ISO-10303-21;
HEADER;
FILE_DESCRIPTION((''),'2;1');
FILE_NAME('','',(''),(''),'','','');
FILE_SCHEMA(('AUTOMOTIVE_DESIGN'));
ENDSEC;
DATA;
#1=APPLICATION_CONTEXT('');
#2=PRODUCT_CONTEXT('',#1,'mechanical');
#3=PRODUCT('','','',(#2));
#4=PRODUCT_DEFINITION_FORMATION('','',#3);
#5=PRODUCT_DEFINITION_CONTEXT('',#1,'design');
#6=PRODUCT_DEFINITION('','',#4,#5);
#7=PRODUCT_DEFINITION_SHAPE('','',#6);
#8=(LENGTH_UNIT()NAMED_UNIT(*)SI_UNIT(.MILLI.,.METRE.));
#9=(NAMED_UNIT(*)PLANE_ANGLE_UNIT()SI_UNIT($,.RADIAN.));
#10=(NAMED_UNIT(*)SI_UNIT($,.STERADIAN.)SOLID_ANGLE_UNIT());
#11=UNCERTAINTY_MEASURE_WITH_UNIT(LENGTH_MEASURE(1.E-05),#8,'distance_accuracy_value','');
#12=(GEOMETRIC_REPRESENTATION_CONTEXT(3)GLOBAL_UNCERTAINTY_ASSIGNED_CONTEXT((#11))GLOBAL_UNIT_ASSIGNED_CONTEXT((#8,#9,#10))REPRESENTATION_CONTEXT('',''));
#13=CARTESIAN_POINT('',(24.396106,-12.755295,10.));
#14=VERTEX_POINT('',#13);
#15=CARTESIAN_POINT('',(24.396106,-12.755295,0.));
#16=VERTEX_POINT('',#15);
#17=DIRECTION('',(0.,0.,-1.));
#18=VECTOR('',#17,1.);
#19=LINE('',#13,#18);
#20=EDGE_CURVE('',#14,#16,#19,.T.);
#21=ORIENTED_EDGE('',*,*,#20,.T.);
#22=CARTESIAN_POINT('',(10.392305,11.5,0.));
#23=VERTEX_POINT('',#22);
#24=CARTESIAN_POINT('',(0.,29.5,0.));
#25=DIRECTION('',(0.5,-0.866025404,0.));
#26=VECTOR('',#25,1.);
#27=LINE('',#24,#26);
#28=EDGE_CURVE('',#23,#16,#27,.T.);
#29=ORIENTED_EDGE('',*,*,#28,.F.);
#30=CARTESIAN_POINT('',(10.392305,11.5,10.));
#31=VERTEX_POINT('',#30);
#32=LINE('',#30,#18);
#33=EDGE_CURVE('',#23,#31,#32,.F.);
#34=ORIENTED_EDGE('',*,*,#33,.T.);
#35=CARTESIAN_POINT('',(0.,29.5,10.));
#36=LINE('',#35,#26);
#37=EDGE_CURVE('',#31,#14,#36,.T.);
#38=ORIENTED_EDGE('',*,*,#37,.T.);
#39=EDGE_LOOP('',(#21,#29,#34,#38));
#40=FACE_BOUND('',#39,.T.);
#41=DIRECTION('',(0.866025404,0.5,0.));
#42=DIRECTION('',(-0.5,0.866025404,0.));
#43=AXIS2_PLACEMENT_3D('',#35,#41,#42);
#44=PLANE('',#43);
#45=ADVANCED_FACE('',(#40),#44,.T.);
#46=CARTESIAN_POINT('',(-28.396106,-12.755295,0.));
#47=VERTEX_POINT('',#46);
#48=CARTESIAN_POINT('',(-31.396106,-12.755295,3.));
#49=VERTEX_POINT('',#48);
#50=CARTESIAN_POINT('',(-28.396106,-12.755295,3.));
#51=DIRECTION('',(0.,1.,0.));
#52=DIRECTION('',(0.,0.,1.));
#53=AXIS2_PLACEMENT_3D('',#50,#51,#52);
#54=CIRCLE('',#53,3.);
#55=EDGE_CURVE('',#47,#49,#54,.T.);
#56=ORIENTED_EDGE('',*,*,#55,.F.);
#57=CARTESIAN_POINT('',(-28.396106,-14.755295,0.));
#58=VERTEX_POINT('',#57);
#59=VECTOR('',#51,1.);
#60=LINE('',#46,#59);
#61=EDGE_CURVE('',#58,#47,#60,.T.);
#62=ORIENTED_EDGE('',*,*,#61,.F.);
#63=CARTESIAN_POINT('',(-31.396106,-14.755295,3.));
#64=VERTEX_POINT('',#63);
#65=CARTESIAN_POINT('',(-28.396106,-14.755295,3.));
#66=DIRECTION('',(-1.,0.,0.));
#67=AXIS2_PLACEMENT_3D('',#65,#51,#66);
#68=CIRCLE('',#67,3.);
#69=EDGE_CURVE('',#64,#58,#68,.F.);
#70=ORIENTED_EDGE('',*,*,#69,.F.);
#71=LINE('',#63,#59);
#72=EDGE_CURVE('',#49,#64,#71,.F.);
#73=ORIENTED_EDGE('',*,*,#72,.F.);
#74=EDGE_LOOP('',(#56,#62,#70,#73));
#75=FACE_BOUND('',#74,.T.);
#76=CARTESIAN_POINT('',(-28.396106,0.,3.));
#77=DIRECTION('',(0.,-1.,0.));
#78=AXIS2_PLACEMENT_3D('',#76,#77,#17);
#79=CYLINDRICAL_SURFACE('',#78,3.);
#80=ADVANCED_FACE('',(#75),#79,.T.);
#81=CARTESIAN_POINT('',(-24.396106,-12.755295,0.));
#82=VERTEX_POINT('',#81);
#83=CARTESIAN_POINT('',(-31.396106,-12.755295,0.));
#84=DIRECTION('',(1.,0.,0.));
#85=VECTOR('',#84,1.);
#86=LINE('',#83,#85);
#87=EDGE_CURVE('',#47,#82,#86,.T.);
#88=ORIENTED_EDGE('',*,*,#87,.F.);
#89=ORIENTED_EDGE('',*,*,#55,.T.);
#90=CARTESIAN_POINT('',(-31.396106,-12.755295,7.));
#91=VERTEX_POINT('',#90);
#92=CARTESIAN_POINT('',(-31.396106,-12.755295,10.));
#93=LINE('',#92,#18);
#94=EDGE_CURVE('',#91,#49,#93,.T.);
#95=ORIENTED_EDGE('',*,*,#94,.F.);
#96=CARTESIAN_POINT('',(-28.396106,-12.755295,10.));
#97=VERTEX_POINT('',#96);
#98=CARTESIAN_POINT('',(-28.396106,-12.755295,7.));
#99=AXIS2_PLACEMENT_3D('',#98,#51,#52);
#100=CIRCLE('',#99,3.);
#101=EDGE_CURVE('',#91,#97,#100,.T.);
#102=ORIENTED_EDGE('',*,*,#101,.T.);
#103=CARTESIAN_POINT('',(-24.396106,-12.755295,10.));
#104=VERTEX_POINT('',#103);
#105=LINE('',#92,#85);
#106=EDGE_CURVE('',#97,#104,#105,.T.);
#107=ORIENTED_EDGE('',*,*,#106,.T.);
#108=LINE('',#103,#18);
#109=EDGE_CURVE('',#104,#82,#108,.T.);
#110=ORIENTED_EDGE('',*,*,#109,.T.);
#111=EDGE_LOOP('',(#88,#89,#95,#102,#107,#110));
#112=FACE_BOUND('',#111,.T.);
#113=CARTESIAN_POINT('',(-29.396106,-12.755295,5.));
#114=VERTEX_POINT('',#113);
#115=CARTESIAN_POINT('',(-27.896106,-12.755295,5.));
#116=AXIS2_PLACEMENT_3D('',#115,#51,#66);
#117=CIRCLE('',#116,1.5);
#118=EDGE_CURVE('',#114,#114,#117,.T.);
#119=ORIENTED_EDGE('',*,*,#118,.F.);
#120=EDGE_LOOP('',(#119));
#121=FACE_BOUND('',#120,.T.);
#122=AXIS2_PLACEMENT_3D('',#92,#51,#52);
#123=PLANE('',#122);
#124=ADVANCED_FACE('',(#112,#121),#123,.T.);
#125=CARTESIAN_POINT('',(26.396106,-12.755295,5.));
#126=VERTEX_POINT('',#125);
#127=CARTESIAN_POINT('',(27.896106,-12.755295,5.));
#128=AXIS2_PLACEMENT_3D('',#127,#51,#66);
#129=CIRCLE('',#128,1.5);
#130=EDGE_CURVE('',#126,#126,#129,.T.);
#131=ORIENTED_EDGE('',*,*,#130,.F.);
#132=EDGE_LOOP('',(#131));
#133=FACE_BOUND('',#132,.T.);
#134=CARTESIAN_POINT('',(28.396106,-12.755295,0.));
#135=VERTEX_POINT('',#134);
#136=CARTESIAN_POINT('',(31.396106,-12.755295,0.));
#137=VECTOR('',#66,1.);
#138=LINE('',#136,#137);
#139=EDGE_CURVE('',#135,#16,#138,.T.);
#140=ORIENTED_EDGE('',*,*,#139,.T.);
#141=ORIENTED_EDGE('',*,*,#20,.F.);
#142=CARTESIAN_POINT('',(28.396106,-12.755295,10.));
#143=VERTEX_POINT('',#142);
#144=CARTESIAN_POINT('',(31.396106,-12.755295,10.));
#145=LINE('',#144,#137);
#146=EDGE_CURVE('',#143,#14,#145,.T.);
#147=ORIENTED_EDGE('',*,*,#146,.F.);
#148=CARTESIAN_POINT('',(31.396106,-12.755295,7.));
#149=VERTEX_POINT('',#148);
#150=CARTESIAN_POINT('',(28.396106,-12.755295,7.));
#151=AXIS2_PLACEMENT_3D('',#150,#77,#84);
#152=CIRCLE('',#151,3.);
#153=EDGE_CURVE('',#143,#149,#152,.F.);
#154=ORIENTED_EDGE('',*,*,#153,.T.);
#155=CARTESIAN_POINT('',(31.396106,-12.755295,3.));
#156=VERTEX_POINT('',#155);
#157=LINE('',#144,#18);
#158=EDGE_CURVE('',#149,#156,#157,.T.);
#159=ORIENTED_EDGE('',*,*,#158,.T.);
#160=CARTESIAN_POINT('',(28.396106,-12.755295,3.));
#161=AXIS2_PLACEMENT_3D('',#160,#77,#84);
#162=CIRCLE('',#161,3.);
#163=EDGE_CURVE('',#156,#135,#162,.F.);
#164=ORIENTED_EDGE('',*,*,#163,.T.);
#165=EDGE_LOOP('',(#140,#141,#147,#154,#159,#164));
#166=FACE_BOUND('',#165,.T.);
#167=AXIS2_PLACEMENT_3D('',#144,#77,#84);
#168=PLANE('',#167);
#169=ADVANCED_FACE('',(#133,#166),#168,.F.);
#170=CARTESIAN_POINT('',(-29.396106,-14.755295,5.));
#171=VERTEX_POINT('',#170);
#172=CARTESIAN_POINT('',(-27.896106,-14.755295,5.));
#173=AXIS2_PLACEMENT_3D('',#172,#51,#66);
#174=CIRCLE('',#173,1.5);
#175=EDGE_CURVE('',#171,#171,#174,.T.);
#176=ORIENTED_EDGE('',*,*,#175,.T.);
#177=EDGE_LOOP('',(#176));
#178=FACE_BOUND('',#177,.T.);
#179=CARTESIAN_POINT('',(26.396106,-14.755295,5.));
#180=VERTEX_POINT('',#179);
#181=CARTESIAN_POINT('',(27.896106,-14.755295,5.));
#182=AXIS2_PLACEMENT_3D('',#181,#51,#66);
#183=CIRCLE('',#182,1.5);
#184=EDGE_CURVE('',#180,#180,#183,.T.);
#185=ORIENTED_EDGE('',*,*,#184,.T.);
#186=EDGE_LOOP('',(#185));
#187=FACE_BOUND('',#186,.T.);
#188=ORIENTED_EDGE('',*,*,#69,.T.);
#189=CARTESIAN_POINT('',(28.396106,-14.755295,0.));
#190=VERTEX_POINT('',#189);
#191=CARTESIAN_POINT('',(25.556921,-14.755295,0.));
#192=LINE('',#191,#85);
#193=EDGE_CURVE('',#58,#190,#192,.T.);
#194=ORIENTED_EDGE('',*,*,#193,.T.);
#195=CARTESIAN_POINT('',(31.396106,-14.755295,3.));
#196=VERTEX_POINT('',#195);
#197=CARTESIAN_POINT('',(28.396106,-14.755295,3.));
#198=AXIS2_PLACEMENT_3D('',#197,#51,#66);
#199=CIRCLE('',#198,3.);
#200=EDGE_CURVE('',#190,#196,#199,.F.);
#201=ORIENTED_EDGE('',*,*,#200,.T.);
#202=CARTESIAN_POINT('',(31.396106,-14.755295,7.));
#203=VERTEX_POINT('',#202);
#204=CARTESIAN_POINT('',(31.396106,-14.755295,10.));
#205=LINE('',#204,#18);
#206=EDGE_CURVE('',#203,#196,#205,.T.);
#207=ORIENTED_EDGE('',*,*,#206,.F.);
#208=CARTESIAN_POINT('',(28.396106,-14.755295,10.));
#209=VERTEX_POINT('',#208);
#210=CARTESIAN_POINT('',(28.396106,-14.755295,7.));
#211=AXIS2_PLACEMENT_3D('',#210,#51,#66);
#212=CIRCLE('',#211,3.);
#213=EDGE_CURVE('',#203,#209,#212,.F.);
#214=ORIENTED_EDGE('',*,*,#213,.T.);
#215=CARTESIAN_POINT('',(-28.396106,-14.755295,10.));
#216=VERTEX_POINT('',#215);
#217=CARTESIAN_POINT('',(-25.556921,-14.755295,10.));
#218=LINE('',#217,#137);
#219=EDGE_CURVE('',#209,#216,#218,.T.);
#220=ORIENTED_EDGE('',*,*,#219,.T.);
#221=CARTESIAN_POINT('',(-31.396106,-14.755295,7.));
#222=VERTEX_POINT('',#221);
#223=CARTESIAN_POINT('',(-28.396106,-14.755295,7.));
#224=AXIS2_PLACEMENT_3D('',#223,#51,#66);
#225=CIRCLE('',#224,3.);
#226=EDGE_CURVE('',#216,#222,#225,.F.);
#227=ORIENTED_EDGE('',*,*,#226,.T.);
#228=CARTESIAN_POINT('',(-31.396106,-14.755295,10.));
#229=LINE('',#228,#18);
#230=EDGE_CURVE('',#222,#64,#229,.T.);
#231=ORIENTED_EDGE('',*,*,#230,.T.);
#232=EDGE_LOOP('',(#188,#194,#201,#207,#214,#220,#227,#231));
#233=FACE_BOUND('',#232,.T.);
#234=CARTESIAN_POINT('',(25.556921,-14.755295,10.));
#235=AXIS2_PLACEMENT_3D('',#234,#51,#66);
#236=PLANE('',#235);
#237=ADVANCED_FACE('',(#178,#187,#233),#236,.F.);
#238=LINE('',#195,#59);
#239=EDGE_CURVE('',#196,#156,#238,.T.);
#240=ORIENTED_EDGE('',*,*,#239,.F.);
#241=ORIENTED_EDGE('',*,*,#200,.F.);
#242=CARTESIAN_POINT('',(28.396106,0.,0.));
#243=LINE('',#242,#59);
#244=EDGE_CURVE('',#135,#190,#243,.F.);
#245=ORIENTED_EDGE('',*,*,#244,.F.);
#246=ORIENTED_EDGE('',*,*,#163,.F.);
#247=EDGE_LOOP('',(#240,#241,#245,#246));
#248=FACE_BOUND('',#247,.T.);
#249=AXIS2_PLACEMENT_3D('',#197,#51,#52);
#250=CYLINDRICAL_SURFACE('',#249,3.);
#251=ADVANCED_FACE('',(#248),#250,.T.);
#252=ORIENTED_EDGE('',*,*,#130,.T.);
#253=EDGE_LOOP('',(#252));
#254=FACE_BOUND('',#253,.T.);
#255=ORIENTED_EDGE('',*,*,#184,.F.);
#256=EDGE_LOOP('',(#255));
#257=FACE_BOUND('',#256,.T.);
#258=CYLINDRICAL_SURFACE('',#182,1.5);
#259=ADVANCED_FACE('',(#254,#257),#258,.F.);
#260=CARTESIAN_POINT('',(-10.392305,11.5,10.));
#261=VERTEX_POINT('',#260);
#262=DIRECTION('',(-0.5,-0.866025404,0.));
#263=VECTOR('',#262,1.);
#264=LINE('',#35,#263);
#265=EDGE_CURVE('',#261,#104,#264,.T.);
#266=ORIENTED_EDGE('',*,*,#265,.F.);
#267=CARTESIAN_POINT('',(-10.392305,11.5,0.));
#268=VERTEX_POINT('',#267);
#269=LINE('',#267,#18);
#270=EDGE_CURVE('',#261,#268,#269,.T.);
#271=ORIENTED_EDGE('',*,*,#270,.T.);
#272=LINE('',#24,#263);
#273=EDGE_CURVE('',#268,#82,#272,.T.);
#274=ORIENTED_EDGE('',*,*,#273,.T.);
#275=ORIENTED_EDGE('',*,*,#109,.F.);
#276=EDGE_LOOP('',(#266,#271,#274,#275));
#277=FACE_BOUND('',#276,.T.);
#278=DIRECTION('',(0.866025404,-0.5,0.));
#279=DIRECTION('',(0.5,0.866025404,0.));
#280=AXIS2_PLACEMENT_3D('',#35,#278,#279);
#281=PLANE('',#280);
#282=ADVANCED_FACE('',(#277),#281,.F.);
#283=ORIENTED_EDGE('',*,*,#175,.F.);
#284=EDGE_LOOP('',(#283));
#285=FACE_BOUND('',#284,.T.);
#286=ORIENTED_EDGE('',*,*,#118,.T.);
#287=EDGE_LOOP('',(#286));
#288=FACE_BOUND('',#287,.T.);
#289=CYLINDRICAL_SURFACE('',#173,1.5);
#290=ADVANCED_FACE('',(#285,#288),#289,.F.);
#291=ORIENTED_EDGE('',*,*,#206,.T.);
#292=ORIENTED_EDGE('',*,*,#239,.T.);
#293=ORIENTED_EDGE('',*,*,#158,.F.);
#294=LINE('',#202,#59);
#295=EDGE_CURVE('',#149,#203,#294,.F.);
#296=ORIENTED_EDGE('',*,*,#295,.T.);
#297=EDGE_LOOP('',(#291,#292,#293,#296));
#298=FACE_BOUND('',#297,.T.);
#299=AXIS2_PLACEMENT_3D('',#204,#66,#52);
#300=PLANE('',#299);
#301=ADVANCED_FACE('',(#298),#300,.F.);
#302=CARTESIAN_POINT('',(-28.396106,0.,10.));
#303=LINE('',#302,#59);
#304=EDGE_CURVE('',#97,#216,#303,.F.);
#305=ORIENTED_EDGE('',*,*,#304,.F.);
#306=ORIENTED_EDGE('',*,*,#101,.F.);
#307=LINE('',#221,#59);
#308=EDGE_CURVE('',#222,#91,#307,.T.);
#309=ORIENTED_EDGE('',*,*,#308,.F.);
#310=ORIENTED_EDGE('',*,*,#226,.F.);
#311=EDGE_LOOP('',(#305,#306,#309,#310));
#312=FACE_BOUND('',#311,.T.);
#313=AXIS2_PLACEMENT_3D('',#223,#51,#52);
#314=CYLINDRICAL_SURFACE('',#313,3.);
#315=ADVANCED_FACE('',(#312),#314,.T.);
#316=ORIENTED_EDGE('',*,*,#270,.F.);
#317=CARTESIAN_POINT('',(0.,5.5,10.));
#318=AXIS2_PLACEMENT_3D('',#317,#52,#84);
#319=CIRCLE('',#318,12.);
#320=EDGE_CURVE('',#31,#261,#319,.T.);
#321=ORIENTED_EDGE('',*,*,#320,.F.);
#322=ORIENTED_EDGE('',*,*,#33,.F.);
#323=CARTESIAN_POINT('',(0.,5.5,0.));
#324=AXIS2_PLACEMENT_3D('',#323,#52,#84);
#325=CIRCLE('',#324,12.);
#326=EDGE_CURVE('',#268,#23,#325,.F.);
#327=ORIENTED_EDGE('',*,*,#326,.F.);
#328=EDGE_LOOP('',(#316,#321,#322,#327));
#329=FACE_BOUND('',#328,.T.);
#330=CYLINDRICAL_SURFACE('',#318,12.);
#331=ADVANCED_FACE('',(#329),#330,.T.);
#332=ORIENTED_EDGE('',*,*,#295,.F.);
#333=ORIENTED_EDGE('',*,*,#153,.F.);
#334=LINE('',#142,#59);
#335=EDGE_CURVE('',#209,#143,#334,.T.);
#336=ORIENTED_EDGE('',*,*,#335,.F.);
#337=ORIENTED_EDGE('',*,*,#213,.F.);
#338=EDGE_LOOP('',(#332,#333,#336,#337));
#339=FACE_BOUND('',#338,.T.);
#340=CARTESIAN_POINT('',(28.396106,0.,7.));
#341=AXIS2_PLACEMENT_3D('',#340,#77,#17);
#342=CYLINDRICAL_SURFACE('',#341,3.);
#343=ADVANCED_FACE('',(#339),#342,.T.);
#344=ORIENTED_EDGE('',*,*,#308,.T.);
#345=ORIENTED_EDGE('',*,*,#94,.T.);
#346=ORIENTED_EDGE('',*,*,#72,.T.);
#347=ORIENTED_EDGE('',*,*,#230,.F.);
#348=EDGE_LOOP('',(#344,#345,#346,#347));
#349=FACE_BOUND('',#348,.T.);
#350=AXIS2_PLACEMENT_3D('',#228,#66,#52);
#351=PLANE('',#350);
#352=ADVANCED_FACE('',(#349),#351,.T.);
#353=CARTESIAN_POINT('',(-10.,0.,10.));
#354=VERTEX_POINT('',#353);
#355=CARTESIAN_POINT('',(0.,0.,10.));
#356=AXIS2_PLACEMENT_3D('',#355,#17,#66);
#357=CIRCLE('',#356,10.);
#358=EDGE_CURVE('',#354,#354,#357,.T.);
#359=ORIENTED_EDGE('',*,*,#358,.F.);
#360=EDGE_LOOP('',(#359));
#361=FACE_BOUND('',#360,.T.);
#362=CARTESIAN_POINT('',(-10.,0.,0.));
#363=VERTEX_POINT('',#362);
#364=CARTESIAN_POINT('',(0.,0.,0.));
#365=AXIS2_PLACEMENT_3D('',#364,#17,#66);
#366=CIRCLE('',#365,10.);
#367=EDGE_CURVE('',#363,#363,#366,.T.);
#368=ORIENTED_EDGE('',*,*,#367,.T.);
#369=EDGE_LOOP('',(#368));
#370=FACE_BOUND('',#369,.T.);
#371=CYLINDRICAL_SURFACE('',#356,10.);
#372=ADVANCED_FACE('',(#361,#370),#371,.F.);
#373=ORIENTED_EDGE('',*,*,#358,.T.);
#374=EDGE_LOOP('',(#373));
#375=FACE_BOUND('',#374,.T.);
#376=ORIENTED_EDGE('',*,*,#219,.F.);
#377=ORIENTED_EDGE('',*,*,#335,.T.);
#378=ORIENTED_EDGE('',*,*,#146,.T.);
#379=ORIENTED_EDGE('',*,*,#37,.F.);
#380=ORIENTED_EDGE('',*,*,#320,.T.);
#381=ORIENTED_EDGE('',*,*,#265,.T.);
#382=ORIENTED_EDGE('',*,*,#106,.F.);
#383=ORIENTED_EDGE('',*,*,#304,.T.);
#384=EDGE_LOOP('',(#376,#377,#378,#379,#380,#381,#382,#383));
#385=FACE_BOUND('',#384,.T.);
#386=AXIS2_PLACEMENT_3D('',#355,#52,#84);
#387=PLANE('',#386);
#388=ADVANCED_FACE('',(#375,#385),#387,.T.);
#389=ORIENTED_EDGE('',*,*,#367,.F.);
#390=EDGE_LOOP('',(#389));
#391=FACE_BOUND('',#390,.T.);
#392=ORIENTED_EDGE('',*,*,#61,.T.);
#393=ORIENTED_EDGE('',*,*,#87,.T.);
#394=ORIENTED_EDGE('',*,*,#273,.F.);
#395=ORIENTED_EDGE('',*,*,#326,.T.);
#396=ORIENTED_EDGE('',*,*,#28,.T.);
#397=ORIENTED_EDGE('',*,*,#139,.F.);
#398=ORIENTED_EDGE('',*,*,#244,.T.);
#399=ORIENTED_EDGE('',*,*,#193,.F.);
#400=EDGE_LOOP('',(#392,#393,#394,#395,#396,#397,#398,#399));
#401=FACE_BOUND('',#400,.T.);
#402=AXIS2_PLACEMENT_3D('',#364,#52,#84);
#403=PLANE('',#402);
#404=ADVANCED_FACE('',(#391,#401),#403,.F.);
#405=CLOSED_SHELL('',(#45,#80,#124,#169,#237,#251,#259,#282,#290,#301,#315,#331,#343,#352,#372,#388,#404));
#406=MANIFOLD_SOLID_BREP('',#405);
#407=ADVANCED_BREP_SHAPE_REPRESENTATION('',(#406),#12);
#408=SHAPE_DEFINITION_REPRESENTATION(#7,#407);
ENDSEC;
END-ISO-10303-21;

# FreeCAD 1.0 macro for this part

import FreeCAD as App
import Part
import Sketcher

V = App.Vector
Q = App.Units.Quantity


def edges_at(feature, points):
    """Names of the edges that pass closest to the given points."""
    edges = feature.Shape.Edges
    near = lambda p: min(range(len(edges)), key=lambda i: edges[i].distToShape(Part.Vertex(*p))[0])
    return sorted({f"Edge{near(p) + 1}" for p in points})


def add_polygon(sketch, points):
    """Adds a closed chain of lines whose ends are joined by coincident constraints."""
    first, n = sketch.GeometryCount, len(points)
    for a, b in zip(points, points[1:] + points[:1]):
        sketch.addGeometry(Part.LineSegment(App.Vector(*a, 0), App.Vector(*b, 0)), False)
    for i in range(n):
        sketch.addConstraint(Sketcher.Constraint("Coincident", first + i, 2, first + (i + 1) % n, 1))

doc = App.newDocument("Part")
body = doc.addObject("PartDesign::Body", "Body")

# Sketch on XY plane
sketch1 = doc.addObject("Sketcher::SketchObject", "Sketch")
body.addObject(sketch1)
sketch1.AttachmentSupport = (doc.XY_Plane, [""])
sketch1.MapMode = "FlatFace"
add_polygon(sketch1, [(0, 29.5), (-24.4, -12.8), (-31.4, -12.8), (-31.4, -14.8), (31.4, -14.8), (31.4, -12.8), (24.4, -12.8)])  # lines 0-6
sketch1.addConstraint(Sketcher.Constraint("Horizontal", 1))
sketch1.addConstraint(Sketcher.Constraint("Vertical", 2))
sketch1.addConstraint(Sketcher.Constraint("Horizontal", 3))
sketch1.addConstraint(Sketcher.Constraint("Vertical", 4))
sketch1.addConstraint(Sketcher.Constraint("Horizontal", 5))
sketch1.addConstraint(Sketcher.Constraint("Symmetric", 1, 2, 4, 2, -2))
sketch1.addConstraint(Sketcher.Constraint("PointOnObject", 6, 2, -2))
sketch1.addConstraint(Sketcher.Constraint("Equal", 1, 5))
sketch1.addConstraint(Sketcher.Constraint("DistanceX", 1, 2, 1, 1, Q("7 mm")))
sketch1.addConstraint(Sketcher.Constraint("DistanceY", 2, 2, 2, 1, Q("2 mm")))
sketch1.addConstraint(Sketcher.Constraint("Angle", 0, Q("-120 deg")))
sketch1.addConstraint(Sketcher.Constraint("DistanceY", -1, 1, 6, 2, Q("29.5 mm")))
sketch1.addConstraint(Sketcher.Constraint("DistanceX", 3, 1, 3, 2, Q("62.792212 mm")))
pad1 = doc.addObject("PartDesign::Pad", "Pad")
body.addObject(pad1)
pad1.Profile = sketch1
pad1.Length = 10

# Sketch on XY plane
sketch2 = doc.addObject("Sketcher::SketchObject", "Sketch001")
body.addObject(sketch2)
sketch2.AttachmentSupport = (doc.XY_Plane, [""])
sketch2.MapMode = "FlatFace"
sketch2.addGeometry(Part.Circle(V(0, 0, 0), V(0, 0, 1), 10), False)
sketch2.addConstraint(Sketcher.Constraint("Coincident", 0, 3, -1, 1))
sketch2.addConstraint(Sketcher.Constraint("Diameter", 0, Q("20 mm")))
pocket1 = doc.addObject("PartDesign::Pocket", "Pocket")
body.addObject(pocket1)
pocket1.Profile = sketch2
pocket1.Length = 10
pocket1.Reversed = True
doc.recompute()

fillet = doc.addObject("PartDesign::Fillet", "Fillet")
body.addObject(fillet)
fillet.Base = (pocket1, edges_at(pocket1, [(0, 29.5, 5)]))
fillet.Radius = 12

# Sketch on XZ plane
sketch3 = doc.addObject("Sketcher::SketchObject", "Sketch002")
body.addObject(sketch3)
sketch3.AttachmentSupport = (doc.XZ_Plane, [""])
sketch3.MapMode = "FlatFace"
sketch3.AttachmentOffset = App.Placement(V(0, 0, 12.755295), App.Rotation())
sketch3.addGeometry(Part.Circle(V(27.9, 5, 0), V(0, 0, 1), 1.5), False)
sketch3.addGeometry(Part.Circle(V(-27.9, 5, 0), V(0, 0, 1), 1.5), False)
sketch3.addConstraint(Sketcher.Constraint("Equal", 0, 1))
sketch3.addConstraint(Sketcher.Constraint("Symmetric", 0, 3, 1, 3, -2))
sketch3.addConstraint(Sketcher.Constraint("Diameter", 0, Q("3 mm")))
sketch3.addConstraint(Sketcher.Constraint("DistanceY", -1, 1, 0, 3, Q("5 mm")))
sketch3.addConstraint(Sketcher.Constraint("DistanceX", -1, 1, 0, 3, Q("27.896106 mm")))
pocket2 = doc.addObject("PartDesign::Pocket", "Pocket001")
body.addObject(pocket2)
pocket2.Profile = sketch3
pocket2.Type = "ThroughAll"
pocket2.Reversed = True
doc.recompute()

fillet2 = doc.addObject("PartDesign::Fillet", "Fillet001")
body.addObject(fillet2)
fillet2.Base = (pocket2, edges_at(pocket2, [
    (-31.396, -13.755, 10),
    (-31.396, -13.755, 0),
    (31.396, -13.755, 10),
    (31.396, -13.755, 0),
]))
fillet2.Radius = 3

doc.recompute()
